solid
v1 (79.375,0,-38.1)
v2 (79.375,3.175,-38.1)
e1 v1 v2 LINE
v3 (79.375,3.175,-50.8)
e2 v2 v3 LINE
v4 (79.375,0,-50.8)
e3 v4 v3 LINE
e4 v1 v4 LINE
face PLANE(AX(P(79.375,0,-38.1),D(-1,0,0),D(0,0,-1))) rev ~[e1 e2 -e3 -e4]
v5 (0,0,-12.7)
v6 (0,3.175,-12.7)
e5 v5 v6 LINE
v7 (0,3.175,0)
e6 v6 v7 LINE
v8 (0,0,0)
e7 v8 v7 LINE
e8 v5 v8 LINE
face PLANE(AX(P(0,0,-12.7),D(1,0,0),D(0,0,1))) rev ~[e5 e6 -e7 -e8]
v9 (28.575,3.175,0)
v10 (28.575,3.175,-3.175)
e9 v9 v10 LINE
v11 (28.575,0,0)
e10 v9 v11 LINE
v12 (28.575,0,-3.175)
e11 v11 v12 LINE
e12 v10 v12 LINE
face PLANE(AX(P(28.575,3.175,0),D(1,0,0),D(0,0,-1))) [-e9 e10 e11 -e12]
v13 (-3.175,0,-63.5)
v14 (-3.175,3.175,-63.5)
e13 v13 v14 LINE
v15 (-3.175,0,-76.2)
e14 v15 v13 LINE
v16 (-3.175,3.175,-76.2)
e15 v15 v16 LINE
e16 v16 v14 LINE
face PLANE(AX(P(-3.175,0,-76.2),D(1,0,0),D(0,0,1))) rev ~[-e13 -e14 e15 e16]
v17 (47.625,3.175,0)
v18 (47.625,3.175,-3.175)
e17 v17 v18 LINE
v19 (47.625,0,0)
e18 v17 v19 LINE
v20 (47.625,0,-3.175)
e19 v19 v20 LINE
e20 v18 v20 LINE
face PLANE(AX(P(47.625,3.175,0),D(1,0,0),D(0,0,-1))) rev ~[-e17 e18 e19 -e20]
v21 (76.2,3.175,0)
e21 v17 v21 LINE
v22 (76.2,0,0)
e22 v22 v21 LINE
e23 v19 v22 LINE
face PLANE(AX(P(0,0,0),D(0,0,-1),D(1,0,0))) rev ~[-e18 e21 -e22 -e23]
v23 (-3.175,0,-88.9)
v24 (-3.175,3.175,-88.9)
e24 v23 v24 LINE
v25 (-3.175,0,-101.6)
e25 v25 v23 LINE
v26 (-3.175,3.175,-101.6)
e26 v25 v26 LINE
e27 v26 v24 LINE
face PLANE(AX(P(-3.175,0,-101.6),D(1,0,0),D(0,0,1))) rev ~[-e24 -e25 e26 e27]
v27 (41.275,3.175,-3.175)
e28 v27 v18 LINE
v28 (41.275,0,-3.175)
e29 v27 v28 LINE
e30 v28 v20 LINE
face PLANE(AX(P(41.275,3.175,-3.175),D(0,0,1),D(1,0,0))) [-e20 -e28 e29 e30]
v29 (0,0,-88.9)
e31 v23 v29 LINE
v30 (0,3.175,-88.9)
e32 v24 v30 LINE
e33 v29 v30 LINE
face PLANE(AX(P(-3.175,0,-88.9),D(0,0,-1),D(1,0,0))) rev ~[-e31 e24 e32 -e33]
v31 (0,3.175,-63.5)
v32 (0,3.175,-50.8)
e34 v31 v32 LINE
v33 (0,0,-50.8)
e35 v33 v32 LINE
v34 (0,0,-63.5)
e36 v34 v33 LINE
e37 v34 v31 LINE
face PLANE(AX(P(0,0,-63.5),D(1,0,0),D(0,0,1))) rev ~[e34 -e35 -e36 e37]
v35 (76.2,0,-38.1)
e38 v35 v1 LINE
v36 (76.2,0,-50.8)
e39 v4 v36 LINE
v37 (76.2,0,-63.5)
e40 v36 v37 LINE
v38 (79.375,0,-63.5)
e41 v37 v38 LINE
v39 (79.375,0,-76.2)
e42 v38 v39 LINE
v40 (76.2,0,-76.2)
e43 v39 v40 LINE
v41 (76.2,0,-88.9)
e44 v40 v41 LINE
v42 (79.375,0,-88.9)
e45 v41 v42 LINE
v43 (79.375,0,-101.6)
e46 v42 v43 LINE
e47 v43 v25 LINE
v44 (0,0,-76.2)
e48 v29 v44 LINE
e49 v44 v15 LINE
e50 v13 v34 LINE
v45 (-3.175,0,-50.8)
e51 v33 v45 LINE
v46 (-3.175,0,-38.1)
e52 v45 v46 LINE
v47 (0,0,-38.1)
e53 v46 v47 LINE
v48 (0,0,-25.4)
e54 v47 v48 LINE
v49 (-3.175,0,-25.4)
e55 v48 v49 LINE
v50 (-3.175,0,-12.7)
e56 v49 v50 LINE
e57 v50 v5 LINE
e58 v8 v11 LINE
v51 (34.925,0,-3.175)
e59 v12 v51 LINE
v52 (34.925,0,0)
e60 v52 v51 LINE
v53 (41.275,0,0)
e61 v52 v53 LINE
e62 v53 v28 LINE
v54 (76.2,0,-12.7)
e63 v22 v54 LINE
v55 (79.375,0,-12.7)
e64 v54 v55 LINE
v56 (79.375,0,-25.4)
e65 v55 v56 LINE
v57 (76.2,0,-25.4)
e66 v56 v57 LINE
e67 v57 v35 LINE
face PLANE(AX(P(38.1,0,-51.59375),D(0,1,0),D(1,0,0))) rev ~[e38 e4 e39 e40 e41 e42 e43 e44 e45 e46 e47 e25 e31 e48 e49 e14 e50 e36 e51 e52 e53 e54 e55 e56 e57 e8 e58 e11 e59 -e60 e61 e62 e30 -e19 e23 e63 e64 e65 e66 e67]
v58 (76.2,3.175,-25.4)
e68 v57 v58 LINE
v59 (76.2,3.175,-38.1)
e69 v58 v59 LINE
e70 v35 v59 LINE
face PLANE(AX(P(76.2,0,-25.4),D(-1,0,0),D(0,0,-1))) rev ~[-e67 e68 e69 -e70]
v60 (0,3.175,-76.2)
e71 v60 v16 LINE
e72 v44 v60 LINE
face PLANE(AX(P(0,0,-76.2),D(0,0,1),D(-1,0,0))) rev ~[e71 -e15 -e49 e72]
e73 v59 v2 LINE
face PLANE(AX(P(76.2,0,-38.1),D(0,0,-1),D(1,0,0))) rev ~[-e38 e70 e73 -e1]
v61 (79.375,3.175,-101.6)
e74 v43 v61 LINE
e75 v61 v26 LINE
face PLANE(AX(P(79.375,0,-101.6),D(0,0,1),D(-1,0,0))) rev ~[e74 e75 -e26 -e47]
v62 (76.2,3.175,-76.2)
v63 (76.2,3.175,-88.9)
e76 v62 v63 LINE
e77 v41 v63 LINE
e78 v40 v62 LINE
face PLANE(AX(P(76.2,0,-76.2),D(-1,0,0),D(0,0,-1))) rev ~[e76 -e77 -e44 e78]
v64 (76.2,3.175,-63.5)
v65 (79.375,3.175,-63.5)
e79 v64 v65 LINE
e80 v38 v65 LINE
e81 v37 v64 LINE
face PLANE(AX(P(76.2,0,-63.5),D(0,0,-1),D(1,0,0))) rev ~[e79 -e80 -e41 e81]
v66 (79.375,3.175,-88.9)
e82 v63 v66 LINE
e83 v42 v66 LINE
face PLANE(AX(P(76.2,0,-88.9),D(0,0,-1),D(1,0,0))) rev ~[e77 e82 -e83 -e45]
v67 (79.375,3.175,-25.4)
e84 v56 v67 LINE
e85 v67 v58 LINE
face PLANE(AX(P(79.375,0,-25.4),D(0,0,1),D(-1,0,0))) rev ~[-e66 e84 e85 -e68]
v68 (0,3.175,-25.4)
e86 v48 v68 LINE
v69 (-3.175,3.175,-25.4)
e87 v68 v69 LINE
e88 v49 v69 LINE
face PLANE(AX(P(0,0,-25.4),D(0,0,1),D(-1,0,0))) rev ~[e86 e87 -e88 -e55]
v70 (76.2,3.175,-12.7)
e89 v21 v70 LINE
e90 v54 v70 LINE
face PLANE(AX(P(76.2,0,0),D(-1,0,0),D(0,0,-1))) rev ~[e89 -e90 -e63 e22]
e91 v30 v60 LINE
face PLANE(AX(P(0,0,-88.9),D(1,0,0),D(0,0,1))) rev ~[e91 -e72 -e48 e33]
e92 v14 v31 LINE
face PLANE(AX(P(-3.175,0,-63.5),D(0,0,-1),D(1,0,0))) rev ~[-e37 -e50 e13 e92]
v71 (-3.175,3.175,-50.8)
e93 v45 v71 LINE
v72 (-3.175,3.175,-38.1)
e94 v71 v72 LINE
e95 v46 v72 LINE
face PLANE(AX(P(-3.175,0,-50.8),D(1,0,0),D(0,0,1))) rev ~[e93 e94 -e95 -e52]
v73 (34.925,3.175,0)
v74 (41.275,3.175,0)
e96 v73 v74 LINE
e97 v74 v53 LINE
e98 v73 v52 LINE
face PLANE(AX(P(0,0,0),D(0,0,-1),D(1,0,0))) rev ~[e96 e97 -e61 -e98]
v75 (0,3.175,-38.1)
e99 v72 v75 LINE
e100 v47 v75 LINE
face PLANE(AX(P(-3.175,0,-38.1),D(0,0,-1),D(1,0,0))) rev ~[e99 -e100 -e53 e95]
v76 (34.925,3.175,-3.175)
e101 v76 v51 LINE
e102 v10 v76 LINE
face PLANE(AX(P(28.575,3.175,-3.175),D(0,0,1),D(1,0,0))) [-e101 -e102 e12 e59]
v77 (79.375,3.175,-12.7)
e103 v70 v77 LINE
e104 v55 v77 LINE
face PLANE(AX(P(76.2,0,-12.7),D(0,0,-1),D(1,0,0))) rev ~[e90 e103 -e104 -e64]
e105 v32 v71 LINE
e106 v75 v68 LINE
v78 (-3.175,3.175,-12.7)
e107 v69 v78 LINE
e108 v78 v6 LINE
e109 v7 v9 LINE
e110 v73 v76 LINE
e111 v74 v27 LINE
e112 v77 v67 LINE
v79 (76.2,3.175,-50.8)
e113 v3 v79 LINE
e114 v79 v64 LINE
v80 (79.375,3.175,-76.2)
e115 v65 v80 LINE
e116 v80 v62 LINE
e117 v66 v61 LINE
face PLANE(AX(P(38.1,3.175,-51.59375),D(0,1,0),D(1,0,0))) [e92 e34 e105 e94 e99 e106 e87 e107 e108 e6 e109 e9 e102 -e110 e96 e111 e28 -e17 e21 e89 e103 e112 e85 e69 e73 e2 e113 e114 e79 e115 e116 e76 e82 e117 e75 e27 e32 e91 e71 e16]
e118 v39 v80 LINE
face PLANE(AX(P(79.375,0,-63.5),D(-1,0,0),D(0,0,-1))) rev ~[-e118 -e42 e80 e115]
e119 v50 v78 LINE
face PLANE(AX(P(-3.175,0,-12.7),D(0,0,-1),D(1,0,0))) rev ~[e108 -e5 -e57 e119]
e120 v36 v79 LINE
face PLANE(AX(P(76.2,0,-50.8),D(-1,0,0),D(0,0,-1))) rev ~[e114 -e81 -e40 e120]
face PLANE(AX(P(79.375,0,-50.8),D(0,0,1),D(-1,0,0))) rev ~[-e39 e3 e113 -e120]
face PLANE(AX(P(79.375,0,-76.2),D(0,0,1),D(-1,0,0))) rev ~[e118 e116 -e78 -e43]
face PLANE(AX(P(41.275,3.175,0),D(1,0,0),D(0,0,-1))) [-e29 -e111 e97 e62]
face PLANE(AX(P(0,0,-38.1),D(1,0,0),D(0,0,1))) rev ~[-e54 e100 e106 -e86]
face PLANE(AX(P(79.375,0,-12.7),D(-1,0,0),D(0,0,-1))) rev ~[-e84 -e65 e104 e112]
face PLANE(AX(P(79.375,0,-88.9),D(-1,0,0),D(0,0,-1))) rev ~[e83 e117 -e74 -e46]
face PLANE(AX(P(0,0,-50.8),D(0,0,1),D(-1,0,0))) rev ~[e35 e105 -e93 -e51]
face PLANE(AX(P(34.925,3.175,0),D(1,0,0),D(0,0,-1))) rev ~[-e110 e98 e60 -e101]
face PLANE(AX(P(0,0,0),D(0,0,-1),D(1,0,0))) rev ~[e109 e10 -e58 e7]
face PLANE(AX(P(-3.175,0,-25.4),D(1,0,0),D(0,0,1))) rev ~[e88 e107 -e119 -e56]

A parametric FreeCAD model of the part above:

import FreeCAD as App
import Part
import Sketcher
Q = App.Units.Quantity

doc = App.newDocument("Part")
body = doc.addObject("PartDesign::Body", "Body")

# Sketch on XZ plane
sketch1 = body.newObject("Sketcher::SketchObject", "Sketch")
sketch1.AttachmentSupport = (doc.getObject("XZ_Plane"), [""])
sketch1.MapMode = "FlatFace"
sketch1.addGeometry([
    Part.LineSegment(App.Vector(0, 0, 0), App.Vector(76.2, 0, 0)),  # 0
    Part.LineSegment(App.Vector(76.2, 0, 0), App.Vector(76.2, -12.7, 0)),  # 1
    Part.LineSegment(App.Vector(76.2, -12.7, 0), App.Vector(79.4, -12.7, 0)),  # 2
    Part.LineSegment(App.Vector(79.4, -12.7, 0), App.Vector(79.4, -25.4, 0)),  # 3
    Part.LineSegment(App.Vector(79.4, -25.4, 0), App.Vector(76.2, -25.4, 0)),  # 4
    Part.LineSegment(App.Vector(76.2, -25.4, 0), App.Vector(76.2, -38.1, 0)),  # 5
    Part.LineSegment(App.Vector(76.2, -38.1, 0), App.Vector(79.4, -38.1, 0)),  # 6
    Part.LineSegment(App.Vector(79.4, -38.1, 0), App.Vector(79.4, -50.8, 0)),  # 7
    Part.LineSegment(App.Vector(79.4, -50.8, 0), App.Vector(76.2, -50.8, 0)),  # 8
    Part.LineSegment(App.Vector(76.2, -50.8, 0), App.Vector(76.2, -63.5, 0)),  # 9
    Part.LineSegment(App.Vector(76.2, -63.5, 0), App.Vector(79.4, -63.5, 0)),  # 10
    Part.LineSegment(App.Vector(79.4, -63.5, 0), App.Vector(79.4, -76.2, 0)),  # 11
    Part.LineSegment(App.Vector(79.4, -76.2, 0), App.Vector(76.2, -76.2, 0)),  # 12
    Part.LineSegment(App.Vector(76.2, -76.2, 0), App.Vector(76.2, -88.9, 0)),  # 13
    Part.LineSegment(App.Vector(76.2, -88.9, 0), App.Vector(79.4, -88.9, 0)),  # 14
    Part.LineSegment(App.Vector(79.4, -88.9, 0), App.Vector(79.4, -101.6, 0)),  # 15
    Part.LineSegment(App.Vector(79.4, -101.6, 0), App.Vector(-3.2, -101.6, 0)),  # 16
    Part.LineSegment(App.Vector(-3.2, -101.6, 0), App.Vector(-3.2, -88.9, 0)),  # 17
    Part.LineSegment(App.Vector(-3.2, -88.9, 0), App.Vector(0, -88.9, 0)),  # 18
    Part.LineSegment(App.Vector(0, -88.9, 0), App.Vector(0, -76.2, 0)),  # 19
    Part.LineSegment(App.Vector(0, -76.2, 0), App.Vector(-3.2, -76.2, 0)),  # 20
    Part.LineSegment(App.Vector(-3.2, -76.2, 0), App.Vector(-3.2, -63.5, 0)),  # 21
    Part.LineSegment(App.Vector(-3.2, -63.5, 0), App.Vector(0, -63.5, 0)),  # 22
    Part.LineSegment(App.Vector(0, -63.5, 0), App.Vector(0, -50.8, 0)),  # 23
    Part.LineSegment(App.Vector(0, -50.8, 0), App.Vector(-3.2, -50.8, 0)),  # 24
    Part.LineSegment(App.Vector(-3.2, -50.8, 0), App.Vector(-3.2, -38.1, 0)),  # 25
    Part.LineSegment(App.Vector(-3.2, -38.1, 0), App.Vector(0, -38.1, 0)),  # 26
    Part.LineSegment(App.Vector(0, -38.1, 0), App.Vector(0, -25.4, 0)),  # 27
    Part.LineSegment(App.Vector(0, -25.4, 0), App.Vector(-3.2, -25.4, 0)),  # 28
    Part.LineSegment(App.Vector(-3.2, -25.4, 0), App.Vector(-3.2, -12.7, 0)),  # 29
    Part.LineSegment(App.Vector(-3.2, -12.7, 0), App.Vector(0, -12.7, 0)),  # 30
    Part.LineSegment(App.Vector(0, -12.7, 0), App.Vector(0, 0, 0)),  # 31
], False)
sketch1.addConstraint([
    Sketcher.Constraint("Coincident", 0, 2, 1, 1),
    Sketcher.Constraint("Coincident", 1, 2, 2, 1),
    Sketcher.Constraint("Coincident", 2, 2, 3, 1),
    Sketcher.Constraint("Coincident", 3, 2, 4, 1),
    Sketcher.Constraint("Coincident", 4, 2, 5, 1),
    Sketcher.Constraint("Coincident", 5, 2, 6, 1),
    Sketcher.Constraint("Coincident", 6, 2, 7, 1),
    Sketcher.Constraint("Coincident", 7, 2, 8, 1),
    Sketcher.Constraint("Coincident", 8, 2, 9, 1),
    Sketcher.Constraint("Coincident", 9, 2, 10, 1),
    Sketcher.Constraint("Coincident", 10, 2, 11, 1),
    Sketcher.Constraint("Coincident", 11, 2, 12, 1),
    Sketcher.Constraint("Coincident", 12, 2, 13, 1),
    Sketcher.Constraint("Coincident", 13, 2, 14, 1),
    Sketcher.Constraint("Coincident", 14, 2, 15, 1),
    Sketcher.Constraint("Coincident", 15, 2, 16, 1),
    Sketcher.Constraint("Coincident", 16, 2, 17, 1),
    Sketcher.Constraint("Coincident", 17, 2, 18, 1),
    Sketcher.Constraint("Coincident", 18, 2, 19, 1),
    Sketcher.Constraint("Coincident", 19, 2, 20, 1),
    Sketcher.Constraint("Coincident", 20, 2, 21, 1),
    Sketcher.Constraint("Coincident", 21, 2, 22, 1),
    Sketcher.Constraint("Coincident", 22, 2, 23, 1),
    Sketcher.Constraint("Coincident", 23, 2, 24, 1),
    Sketcher.Constraint("Coincident", 24, 2, 25, 1),
    Sketcher.Constraint("Coincident", 25, 2, 26, 1),
    Sketcher.Constraint("Coincident", 26, 2, 27, 1),
    Sketcher.Constraint("Coincident", 27, 2, 28, 1),
    Sketcher.Constraint("Coincident", 28, 2, 29, 1),
    Sketcher.Constraint("Coincident", 29, 2, 30, 1),
    Sketcher.Constraint("Coincident", 30, 2, 31, 1),
    Sketcher.Constraint("Coincident", 31, 2, 0, 1),
    Sketcher.Constraint("Horizontal", 0),
    Sketcher.Constraint("Vertical", 1),
    Sketcher.Constraint("Horizontal", 2),
    Sketcher.Constraint("Vertical", 3),
    Sketcher.Constraint("Horizontal", 4),
    Sketcher.Constraint("Vertical", 5),
    Sketcher.Constraint("Horizontal", 6),
    Sketcher.Constraint("Vertical", 7),
    Sketcher.Constraint("Horizontal", 8),
    Sketcher.Constraint("Vertical", 9),
    Sketcher.Constraint("Horizontal", 10),
    Sketcher.Constraint("Vertical", 11),
    Sketcher.Constraint("Horizontal", 12),
    Sketcher.Constraint("Vertical", 13),
    Sketcher.Constraint("Horizontal", 14),
    Sketcher.Constraint("Vertical", 15),
    Sketcher.Constraint("Horizontal", 16),
    Sketcher.Constraint("Vertical", 17),
    Sketcher.Constraint("Horizontal", 18),
    Sketcher.Constraint("Vertical", 19),
    Sketcher.Constraint("Horizontal", 20),
    Sketcher.Constraint("Vertical", 21),
    Sketcher.Constraint("Horizontal", 22),
    Sketcher.Constraint("Vertical", 23),
    Sketcher.Constraint("Horizontal", 24),
    Sketcher.Constraint("Vertical", 25),
    Sketcher.Constraint("Horizontal", 26),
    Sketcher.Constraint("Vertical", 27),
    Sketcher.Constraint("Horizontal", 28),
    Sketcher.Constraint("Vertical", 29),
    Sketcher.Constraint("Horizontal", 30),
    Sketcher.Constraint("Vertical", 31),
    Sketcher.Constraint("Coincident", 31, 2, -1, 1),
    Sketcher.Constraint("PointOnObject", 18, 2, -2),
    Sketcher.Constraint("PointOnObject", 22, 2, -2),
    Sketcher.Constraint("PointOnObject", 26, 2, -2),
    Sketcher.Constraint("Horizontal", 14, 2, 17, 2),
    Sketcher.Constraint("Horizontal", 12, 2, 19, 2),
    Sketcher.Constraint("Horizontal", 10, 2, 21, 2),
    Sketcher.Constraint("Horizontal", 8, 2, 23, 2),
    Sketcher.Constraint("Horizontal", 6, 2, 25, 2),
    Sketcher.Constraint("Horizontal", 4, 2, 27, 2),
    Sketcher.Constraint("Horizontal", 2, 2, 29, 2),
    Sketcher.Constraint("Vertical", 1, 2, 4, 2),
    Sketcher.Constraint("Vertical", 3, 2, 6, 2),
    Sketcher.Constraint("Vertical", 5, 2, 8, 2),
    Sketcher.Constraint("Vertical", 7, 2, 10, 2),
    Sketcher.Constraint("Vertical", 9, 2, 12, 2),
    Sketcher.Constraint("Vertical", 11, 2, 14, 2),
    Sketcher.Constraint("Vertical", 17, 2, 20, 2),
    Sketcher.Constraint("Vertical", 21, 2, 24, 2),
    Sketcher.Constraint("Vertical", 25, 2, 28, 2),
    Sketcher.Constraint("Equal", 14, 18),
    Sketcher.Constraint("Equal", 1, 3),
    Sketcher.Constraint("Equal", 3, 5),
    Sketcher.Constraint("Equal", 5, 7),
    Sketcher.Constraint("Equal", 7, 9),
    Sketcher.Constraint("Equal", 9, 11),
    Sketcher.Constraint("Equal", 11, 13),
    Sketcher.Constraint("Equal", 13, 15),
    Sketcher.Constraint("DistanceX", 0, 1, 0, 2, Q("3 in")),
    Sketcher.Constraint("DistanceY", 1, 2, 1, 1, Q("0.5 in")),
    Sketcher.Constraint("DistanceX", 16, 2, 16, 1, Q("3.25 in")),
])
pad1 = body.newObject("PartDesign::Pad", "Pad")
pad1.Profile = sketch1
pad1.Length = Q("0.125 in")
pad1.Reversed = True

# Sketch on XZ plane
sketch2 = body.newObject("Sketcher::SketchObject", "Sketch001")
sketch2.AttachmentSupport = (doc.getObject("XZ_Plane"), [""])
sketch2.MapMode = "FlatFace"
sketch2.AttachmentOffset = App.Placement(App.Vector(0, 0, -0.125 * 25.4), App.Rotation())
sketch2.addGeometry([
    Part.LineSegment(App.Vector(41.3, -3.2, 0), App.Vector(41.3, 0, 0)),  # 0
    Part.LineSegment(App.Vector(41.3, 0, 0), App.Vector(47.6, 0, 0)),  # 1
    Part.LineSegment(App.Vector(47.6, 0, 0), App.Vector(47.6, -3.2, 0)),  # 2
    Part.LineSegment(App.Vector(47.6, -3.2, 0), App.Vector(41.3, -3.2, 0)),  # 3
    Part.LineSegment(App.Vector(28.6, -3.2, 0), App.Vector(28.6, 0, 0)),  # 4
    Part.LineSegment(App.Vector(28.6, 0, 0), App.Vector(34.9, 0, 0)),  # 5
    Part.LineSegment(App.Vector(34.9, 0, 0), App.Vector(34.9, -3.2, 0)),  # 6
    Part.LineSegment(App.Vector(34.9, -3.2, 0), App.Vector(28.6, -3.2, 0)),  # 7
], False)
sketch2.addConstraint([
    Sketcher.Constraint("Coincident", 0, 2, 1, 1),
    Sketcher.Constraint("Coincident", 1, 2, 2, 1),
    Sketcher.Constraint("Coincident", 2, 2, 3, 1),
    Sketcher.Constraint("Coincident", 3, 2, 0, 1),
    Sketcher.Constraint("Coincident", 4, 2, 5, 1),
    Sketcher.Constraint("Coincident", 5, 2, 6, 1),
    Sketcher.Constraint("Coincident", 6, 2, 7, 1),
    Sketcher.Constraint("Coincident", 7, 2, 4, 1),
    Sketcher.Constraint("Vertical", 0),
    Sketcher.Constraint("Horizontal", 1),
    Sketcher.Constraint("Vertical", 2),
    Sketcher.Constraint("Horizontal", 3),
    Sketcher.Constraint("Vertical", 4),
    Sketcher.Constraint("Horizontal", 5),
    Sketcher.Constraint("Vertical", 6),
    Sketcher.Constraint("Horizontal", 7),
    Sketcher.Constraint("PointOnObject", 0, 2, -1),
    Sketcher.Constraint("PointOnObject", 4, 2, -1),
    Sketcher.Constraint("Horizontal", 3, 2, 6, 2),
    Sketcher.Constraint("Equal", 3, 5),
    Sketcher.Constraint("DistanceX", 1, 1, 1, 2, Q("0.25 in")),
    Sketcher.Constraint("DistanceX", 4, 2, 0, 2, Q("0.5 in")),
    Sketcher.Constraint("DistanceY", 0, 1, 0, 2, Q("0.125 in")),
    Sketcher.Constraint("DistanceX", -1, 1, 0, 2, Q("1.625 in")),
])
pocket1 = body.newObject("PartDesign::Pocket", "Pocket")
pocket1.Profile = sketch2
pocket1.Type = "ThroughAll"
pocket1.Reversed = True

doc.recompute()
